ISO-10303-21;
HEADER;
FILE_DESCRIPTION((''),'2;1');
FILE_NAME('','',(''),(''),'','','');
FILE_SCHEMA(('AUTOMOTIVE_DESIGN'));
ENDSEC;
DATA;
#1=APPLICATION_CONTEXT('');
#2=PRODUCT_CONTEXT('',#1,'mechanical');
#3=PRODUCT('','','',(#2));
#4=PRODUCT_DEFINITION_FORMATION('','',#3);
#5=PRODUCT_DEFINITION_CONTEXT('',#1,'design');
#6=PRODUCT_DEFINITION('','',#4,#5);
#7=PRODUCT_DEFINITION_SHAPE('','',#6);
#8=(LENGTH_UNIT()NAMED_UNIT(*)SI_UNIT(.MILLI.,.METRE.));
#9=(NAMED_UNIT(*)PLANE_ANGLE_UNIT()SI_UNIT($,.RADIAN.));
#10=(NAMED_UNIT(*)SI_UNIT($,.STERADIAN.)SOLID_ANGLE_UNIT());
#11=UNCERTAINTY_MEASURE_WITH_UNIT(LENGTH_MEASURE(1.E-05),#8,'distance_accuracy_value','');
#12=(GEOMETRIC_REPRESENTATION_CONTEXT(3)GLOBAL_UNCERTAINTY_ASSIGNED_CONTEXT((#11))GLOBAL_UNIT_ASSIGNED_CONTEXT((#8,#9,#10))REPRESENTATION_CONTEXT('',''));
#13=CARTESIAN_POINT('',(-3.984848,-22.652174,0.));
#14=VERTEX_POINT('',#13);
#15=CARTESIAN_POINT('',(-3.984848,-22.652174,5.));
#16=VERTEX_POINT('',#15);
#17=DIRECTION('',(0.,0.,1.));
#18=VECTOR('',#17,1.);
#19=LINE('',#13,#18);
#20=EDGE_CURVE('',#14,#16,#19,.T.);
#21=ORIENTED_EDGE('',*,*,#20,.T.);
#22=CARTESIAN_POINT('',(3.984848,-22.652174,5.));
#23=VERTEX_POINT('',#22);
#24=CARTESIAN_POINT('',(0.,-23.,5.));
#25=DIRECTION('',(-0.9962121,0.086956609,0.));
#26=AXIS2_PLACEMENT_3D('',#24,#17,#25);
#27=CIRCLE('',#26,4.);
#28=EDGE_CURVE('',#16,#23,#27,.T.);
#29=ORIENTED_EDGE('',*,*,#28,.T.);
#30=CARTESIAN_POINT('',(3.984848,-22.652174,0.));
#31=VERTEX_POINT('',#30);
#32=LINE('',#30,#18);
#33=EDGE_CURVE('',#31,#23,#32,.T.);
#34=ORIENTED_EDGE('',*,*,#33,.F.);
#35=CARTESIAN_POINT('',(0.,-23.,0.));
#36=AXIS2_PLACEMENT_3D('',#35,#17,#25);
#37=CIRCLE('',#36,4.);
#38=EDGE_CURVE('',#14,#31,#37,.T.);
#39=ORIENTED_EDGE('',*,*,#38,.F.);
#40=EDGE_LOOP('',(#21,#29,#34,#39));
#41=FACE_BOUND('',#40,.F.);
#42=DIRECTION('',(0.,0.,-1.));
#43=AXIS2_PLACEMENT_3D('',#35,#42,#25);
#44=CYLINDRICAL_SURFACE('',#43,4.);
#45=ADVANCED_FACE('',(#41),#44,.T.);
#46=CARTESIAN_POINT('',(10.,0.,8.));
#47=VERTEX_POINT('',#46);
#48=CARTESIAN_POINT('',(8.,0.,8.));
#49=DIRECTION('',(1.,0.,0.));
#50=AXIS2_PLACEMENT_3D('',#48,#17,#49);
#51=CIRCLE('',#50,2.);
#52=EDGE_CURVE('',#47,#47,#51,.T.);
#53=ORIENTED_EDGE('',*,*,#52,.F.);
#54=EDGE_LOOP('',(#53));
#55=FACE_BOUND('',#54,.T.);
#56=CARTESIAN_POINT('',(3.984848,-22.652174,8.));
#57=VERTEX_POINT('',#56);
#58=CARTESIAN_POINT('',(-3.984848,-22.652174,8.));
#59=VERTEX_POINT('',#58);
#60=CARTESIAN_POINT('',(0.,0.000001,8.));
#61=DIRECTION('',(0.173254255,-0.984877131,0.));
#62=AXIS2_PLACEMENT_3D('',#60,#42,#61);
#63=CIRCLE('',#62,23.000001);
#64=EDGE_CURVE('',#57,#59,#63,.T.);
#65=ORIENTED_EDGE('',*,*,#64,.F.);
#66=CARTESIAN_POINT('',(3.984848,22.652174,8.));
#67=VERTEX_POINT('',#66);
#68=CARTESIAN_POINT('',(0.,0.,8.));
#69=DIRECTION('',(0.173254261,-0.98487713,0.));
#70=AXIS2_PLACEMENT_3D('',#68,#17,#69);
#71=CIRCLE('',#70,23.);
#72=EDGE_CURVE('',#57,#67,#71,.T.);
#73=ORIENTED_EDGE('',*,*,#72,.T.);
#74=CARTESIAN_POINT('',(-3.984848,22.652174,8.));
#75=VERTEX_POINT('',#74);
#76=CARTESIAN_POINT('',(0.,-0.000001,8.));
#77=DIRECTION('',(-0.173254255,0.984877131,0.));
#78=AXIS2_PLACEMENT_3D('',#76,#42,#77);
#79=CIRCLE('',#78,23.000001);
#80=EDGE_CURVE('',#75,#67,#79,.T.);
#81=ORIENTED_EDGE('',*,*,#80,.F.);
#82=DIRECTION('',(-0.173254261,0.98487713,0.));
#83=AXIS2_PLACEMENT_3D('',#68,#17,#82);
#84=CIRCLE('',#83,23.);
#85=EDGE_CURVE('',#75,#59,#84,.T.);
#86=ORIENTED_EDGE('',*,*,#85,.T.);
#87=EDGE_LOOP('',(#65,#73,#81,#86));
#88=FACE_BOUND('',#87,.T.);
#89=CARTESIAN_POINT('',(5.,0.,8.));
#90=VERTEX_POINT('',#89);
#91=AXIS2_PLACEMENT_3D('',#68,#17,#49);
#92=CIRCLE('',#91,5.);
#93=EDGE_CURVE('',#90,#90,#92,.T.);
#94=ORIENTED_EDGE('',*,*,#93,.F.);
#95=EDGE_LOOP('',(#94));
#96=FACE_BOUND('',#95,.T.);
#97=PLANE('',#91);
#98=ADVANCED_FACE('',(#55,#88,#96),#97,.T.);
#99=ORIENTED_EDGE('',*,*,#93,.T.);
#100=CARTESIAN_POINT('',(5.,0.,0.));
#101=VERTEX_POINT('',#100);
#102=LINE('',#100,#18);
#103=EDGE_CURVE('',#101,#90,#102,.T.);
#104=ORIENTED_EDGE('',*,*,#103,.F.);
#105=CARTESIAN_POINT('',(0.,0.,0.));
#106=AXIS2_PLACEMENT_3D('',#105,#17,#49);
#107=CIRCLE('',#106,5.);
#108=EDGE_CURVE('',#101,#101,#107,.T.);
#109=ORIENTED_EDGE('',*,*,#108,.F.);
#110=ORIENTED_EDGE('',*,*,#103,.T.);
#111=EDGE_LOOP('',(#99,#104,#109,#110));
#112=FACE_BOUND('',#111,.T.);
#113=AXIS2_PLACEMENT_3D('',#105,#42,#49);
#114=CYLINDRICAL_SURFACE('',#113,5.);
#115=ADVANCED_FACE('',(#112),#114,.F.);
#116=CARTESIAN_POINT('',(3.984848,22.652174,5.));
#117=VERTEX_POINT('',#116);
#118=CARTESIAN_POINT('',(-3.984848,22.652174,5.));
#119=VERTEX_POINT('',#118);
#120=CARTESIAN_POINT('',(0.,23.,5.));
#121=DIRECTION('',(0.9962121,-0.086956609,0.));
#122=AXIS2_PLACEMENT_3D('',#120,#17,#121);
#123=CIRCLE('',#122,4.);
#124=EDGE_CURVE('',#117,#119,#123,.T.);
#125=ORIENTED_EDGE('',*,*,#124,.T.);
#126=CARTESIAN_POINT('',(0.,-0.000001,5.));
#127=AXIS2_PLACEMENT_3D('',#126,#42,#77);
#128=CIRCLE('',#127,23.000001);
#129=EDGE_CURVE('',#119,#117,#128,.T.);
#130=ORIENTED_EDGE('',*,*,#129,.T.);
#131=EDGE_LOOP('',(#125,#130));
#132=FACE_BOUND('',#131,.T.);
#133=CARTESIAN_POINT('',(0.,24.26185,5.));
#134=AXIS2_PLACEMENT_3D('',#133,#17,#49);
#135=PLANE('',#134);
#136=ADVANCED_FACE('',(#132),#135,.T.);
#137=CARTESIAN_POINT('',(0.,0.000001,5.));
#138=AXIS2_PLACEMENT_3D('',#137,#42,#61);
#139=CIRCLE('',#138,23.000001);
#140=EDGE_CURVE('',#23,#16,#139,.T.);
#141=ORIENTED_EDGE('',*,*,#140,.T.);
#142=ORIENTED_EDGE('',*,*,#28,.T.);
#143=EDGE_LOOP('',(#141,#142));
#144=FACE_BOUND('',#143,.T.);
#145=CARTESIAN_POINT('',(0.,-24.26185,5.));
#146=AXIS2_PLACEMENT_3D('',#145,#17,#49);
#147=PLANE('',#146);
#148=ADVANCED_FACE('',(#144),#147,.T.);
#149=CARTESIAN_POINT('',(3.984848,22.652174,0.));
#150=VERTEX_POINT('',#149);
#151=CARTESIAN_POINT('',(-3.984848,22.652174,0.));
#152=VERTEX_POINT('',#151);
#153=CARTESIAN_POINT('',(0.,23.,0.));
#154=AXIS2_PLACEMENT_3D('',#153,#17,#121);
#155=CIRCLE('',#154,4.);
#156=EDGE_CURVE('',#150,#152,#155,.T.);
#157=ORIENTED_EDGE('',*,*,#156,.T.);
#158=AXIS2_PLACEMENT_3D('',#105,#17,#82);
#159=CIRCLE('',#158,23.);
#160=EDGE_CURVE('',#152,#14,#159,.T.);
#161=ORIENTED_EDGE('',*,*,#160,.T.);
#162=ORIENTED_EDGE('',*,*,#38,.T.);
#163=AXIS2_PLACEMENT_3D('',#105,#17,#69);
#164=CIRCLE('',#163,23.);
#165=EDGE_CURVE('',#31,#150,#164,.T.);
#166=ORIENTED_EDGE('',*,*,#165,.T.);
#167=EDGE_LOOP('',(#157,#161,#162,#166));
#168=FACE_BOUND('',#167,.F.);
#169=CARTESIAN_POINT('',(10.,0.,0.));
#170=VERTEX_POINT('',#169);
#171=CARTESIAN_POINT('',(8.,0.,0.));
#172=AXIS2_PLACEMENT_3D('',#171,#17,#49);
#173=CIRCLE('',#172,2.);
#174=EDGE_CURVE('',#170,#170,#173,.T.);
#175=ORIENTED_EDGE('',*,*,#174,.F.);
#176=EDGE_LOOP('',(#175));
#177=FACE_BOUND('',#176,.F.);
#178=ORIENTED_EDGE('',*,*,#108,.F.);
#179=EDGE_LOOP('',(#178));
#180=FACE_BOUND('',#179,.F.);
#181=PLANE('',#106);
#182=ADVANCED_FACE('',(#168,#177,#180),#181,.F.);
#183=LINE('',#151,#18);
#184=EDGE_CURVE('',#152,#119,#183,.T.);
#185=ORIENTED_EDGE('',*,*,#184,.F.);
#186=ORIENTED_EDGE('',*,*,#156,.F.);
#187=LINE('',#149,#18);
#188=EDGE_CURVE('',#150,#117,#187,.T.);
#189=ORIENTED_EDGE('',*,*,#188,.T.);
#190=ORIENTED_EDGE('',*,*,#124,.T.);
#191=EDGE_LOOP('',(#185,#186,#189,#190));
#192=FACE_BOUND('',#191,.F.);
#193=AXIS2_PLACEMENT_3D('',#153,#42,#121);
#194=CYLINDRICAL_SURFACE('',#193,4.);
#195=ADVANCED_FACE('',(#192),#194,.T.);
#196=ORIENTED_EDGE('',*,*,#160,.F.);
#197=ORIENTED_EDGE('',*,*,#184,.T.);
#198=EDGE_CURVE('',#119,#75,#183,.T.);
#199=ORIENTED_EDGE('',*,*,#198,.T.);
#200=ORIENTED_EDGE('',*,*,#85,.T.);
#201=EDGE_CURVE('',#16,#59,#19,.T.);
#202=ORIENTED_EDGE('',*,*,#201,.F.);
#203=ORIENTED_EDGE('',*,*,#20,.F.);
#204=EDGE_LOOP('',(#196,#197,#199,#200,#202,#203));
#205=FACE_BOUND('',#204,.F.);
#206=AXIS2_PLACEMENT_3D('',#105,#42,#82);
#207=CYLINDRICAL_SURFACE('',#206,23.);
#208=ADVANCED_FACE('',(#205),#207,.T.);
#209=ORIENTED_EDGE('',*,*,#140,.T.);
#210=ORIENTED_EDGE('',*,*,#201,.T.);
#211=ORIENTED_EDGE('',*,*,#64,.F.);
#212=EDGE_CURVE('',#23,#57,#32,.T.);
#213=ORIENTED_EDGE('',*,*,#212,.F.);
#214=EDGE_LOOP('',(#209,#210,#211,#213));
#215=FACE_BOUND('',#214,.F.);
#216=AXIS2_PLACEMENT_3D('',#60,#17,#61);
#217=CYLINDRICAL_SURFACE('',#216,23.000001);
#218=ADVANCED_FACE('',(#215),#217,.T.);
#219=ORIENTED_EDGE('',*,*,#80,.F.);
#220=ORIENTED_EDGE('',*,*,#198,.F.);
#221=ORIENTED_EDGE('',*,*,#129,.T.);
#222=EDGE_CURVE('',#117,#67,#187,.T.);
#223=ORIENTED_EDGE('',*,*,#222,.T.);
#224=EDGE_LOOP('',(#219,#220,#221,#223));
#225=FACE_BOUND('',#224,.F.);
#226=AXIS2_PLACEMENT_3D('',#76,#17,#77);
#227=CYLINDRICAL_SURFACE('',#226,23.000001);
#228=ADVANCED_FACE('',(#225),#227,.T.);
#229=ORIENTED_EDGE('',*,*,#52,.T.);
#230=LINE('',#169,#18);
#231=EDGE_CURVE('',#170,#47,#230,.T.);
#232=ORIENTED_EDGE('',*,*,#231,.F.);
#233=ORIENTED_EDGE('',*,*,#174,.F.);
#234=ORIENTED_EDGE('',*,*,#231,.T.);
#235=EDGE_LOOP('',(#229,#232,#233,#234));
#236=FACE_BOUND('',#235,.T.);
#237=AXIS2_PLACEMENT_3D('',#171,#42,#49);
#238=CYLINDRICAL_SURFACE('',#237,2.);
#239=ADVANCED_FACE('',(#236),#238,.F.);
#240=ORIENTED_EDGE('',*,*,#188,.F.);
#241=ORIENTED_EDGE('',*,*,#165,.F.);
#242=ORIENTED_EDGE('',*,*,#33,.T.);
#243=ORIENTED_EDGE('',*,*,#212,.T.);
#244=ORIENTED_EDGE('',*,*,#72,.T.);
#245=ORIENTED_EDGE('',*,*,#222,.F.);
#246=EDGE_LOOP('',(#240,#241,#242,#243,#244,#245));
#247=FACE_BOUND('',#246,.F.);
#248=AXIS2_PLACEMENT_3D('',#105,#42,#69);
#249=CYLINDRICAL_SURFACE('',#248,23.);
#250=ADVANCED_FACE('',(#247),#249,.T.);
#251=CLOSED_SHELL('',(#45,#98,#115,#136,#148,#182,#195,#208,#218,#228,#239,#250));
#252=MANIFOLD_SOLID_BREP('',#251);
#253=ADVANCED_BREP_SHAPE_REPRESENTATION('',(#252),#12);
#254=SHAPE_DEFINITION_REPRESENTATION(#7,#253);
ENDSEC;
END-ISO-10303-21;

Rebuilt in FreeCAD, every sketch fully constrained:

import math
import FreeCAD as App
import Part
import Sketcher

V = App.Vector

doc = App.newDocument("Part")
body = doc.addObject("PartDesign::Body", "Body")

sketch1 = body.newObject("Sketcher::SketchObject", "Sketch")
sketch1.AttachmentSupport = (doc.getObject("XY_Plane"), [""])
sketch1.MapMode = "FlatFace"
sketch1.addGeometry([
    Part.ArcOfCircle(Part.Circle(V(0, 23, 0), V(0, 0, 1), 4), math.radians(-4.988547), math.radians(184.988547)),
    Part.ArcOfCircle(Part.Circle(V(0, 0, 0), V(0, 0, 1), 23), math.radians(99.977083), math.radians(260.022917)),
    Part.ArcOfCircle(Part.Circle(V(0, -23, 0), V(0, 0, 1), 4), math.radians(175.011453), math.radians(364.988547)),
    Part.ArcOfCircle(Part.Circle(V(0, 0, 0), V(0, 0, 1), 23), math.radians(-80.022917), math.radians(80.022917)),
    Part.Circle(V(0, 0, 0), V(0, 0, 1), 5),
    Part.Circle(V(8, 0, 0), V(0, 0, 1), 2),
], False)
sketch1.addConstraint([
    Sketcher.Constraint("Coincident", 0, 2, 1, 1),
    Sketcher.Constraint("Coincident", 1, 2, 2, 1),
    Sketcher.Constraint("Coincident", 2, 2, 3, 1),
    Sketcher.Constraint("Coincident", 3, 2, 0, 1),
    Sketcher.Constraint("Coincident", 1, 3, -1, 1),
    Sketcher.Constraint("Coincident", 3, 3, -1, 1),
    Sketcher.Constraint("Coincident", 4, 3, -1, 1),
    Sketcher.Constraint("Equal", 0, 2),
    Sketcher.Constraint("Equal", 1, 3),
    Sketcher.Constraint("Symmetric", 0, 3, 2, 3, -1, 1),
    Sketcher.Constraint("PointOnObject", 0, 3, -2),
    Sketcher.Constraint("PointOnObject", 5, 3, -1),
    Sketcher.Constraint("Diameter", 4, 10.0),
    Sketcher.Constraint("Diameter", 5, 4.0),
    Sketcher.Constraint("Radius", 0, 4.0),
    Sketcher.Constraint("Radius", 1, 23.0),
    Sketcher.Constraint("DistanceY", -1, 1, 0, 3, 23.0),
    Sketcher.Constraint("DistanceX", -1, 1, 5, 3, 8.0),
])
pad1 = body.newObject("PartDesign::Pad", "Pad")
pad1.Profile = sketch1
pad1.Length = 8

sketch2 = body.newObject("Sketcher::SketchObject", "Sketch001")
sketch2.AttachmentSupport = (doc.getObject("XY_Plane"), [""])
sketch2.MapMode = "FlatFace"
sketch2.AttachmentOffset = App.Placement(V(0, 0, 8), App.Rotation())
sketch2.addGeometry([
    Part.ArcOfCircle(Part.Circle(V(0, -0.000001, 0), V(0, 0, 1), 23.000001), math.radians(80.022917), math.radians(99.977083)),
    Part.ArcOfCircle(Part.Circle(V(0, 23, 0), V(0, 0, 1), 4), math.radians(-4.988547), math.radians(184.988547)),
    Part.ArcOfCircle(Part.Circle(V(0, -23, 0), V(0, 0, 1), 4), math.radians(175.011453), math.radians(364.988547)),
    Part.ArcOfCircle(Part.Circle(V(0, 0.000001, 0), V(0, 0, 1), 23.000001), math.radians(-99.977083), math.radians(-80.022917)),
], False)
sketch2.addConstraint([
    Sketcher.Constraint("Coincident", 0, 1, 1, 1),
    Sketcher.Constraint("Coincident", 1, 2, 0, 2),
    Sketcher.Constraint("Coincident", 2, 1, 3, 1),
    Sketcher.Constraint("Coincident", 3, 2, 2, 2),
    Sketcher.Constraint("Coincident", 0, 3, -1, 1),
    Sketcher.Constraint("Coincident", 3, 3, -1, 1),
    Sketcher.Constraint("Equal", 1, 2),
    Sketcher.Constraint("Equal", 0, 3),
    Sketcher.Constraint("Symmetric", 1, 3, 2, 3, -1, 1),
    Sketcher.Constraint("PointOnObject", 1, 3, -2),
    Sketcher.Constraint("Radius", 0, 23.000001),
    Sketcher.Constraint("Radius", 1, 4.0),
    Sketcher.Constraint("DistanceY", -1, 1, 1, 3, 23.0),
])
pocket1 = body.newObject("PartDesign::Pocket", "Pocket")
pocket1.Profile = sketch2
pocket1.Length = 3

doc.recompute()
